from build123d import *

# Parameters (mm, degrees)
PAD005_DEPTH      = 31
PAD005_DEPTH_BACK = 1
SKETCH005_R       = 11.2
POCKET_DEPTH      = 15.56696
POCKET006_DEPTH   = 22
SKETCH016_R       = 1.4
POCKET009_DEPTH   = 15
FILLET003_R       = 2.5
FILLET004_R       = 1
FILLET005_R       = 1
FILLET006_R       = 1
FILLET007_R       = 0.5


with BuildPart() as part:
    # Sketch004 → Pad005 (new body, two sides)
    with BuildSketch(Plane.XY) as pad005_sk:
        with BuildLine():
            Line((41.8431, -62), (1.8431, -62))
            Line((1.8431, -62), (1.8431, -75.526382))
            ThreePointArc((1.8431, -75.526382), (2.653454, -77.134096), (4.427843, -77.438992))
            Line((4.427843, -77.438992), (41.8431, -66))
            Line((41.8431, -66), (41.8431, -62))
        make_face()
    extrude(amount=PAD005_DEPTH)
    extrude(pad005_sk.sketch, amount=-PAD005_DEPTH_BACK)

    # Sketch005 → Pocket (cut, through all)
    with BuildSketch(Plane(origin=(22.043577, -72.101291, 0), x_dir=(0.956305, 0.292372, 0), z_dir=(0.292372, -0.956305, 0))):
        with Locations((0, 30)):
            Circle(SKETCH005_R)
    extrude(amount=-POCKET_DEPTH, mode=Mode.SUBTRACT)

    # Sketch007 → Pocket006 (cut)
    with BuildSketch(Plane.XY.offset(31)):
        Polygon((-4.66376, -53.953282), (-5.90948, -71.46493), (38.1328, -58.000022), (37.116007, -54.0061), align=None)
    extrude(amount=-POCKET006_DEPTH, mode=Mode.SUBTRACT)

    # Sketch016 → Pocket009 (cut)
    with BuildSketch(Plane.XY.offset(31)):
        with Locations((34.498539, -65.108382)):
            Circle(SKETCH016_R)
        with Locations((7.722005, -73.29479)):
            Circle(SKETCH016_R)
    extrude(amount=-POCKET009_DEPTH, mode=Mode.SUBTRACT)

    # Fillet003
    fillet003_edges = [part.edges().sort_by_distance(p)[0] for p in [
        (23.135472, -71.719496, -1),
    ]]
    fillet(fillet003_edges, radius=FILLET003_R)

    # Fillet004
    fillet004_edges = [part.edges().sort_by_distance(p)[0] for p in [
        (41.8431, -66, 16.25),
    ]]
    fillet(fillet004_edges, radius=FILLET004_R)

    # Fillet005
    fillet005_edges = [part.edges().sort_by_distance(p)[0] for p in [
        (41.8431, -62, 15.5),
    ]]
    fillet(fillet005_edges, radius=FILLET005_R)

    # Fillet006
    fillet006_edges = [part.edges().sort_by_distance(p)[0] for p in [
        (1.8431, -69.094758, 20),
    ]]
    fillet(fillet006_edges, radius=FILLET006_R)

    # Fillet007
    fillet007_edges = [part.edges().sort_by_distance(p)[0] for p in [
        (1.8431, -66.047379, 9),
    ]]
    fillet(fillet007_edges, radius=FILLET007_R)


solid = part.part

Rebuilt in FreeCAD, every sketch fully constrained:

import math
import FreeCAD as App
import Part
import Sketcher
Q = App.Units.Quantity


def edges_at(feature, points):
    """Names of the edges that pass closest to the given points."""
    edges = feature.Shape.Edges
    near = lambda p: min(range(len(edges)), key=lambda i: edges[i].distToShape(Part.Vertex(*p))[0])
    return sorted({f"Edge{near(p) + 1}" for p in points})

doc = App.newDocument("Part")
body = doc.addObject("PartDesign::Body", "Body")

# Sketch on XY plane
sketch1 = doc.addObject("Sketcher::SketchObject", "Sketch")
body.addObject(sketch1)
sketch1.AttachmentSupport = (doc.XY_Plane, [""])
sketch1.MapMode = "FlatFace"
sketch1.addGeometry(Part.LineSegment(App.Vector(41.8, -62, 0), App.Vector(1.8, -62, 0)), False)
sketch1.addGeometry(Part.LineSegment(App.Vector(1.8, -62, 0), App.Vector(1.8, -75.5, 0)), False)
sketch1.addGeometry(Part.ArcOfCircle(Part.Circle(App.Vector(3.8, -75.5, 0), App.Vector(0, 0, 1), 2), math.radians(180), math.radians(287)), False)
sketch1.addGeometry(Part.LineSegment(App.Vector(4.4, -77.4, 0), App.Vector(41.8, -66, 0)), False)
sketch1.addGeometry(Part.LineSegment(App.Vector(41.8, -66, 0), App.Vector(41.8, -62, 0)), False)
sketch1.addConstraint(Sketcher.Constraint("Coincident", 0, 2, 1, 1))
sketch1.addConstraint(Sketcher.Constraint("Tangent", 1, 2, 2, 1))
sketch1.addConstraint(Sketcher.Constraint("Tangent", 2, 2, 3, 1))
sketch1.addConstraint(Sketcher.Constraint("Coincident", 3, 2, 4, 1))
sketch1.addConstraint(Sketcher.Constraint("Coincident", 4, 2, 0, 1))
sketch1.addConstraint(Sketcher.Constraint("Horizontal", 0))
sketch1.addConstraint(Sketcher.Constraint("Vertical", 1))
sketch1.addConstraint(Sketcher.Constraint("Vertical", 4))
sketch1.addConstraint(Sketcher.Constraint("Radius", 2, 2.0))
sketch1.addConstraint(Sketcher.Constraint("DistanceX", 0, 2, 0, 1, 40.0))
sketch1.addConstraint(Sketcher.Constraint("DistanceY", 4, 1, 4, 2, 4.0))
sketch1.addConstraint(Sketcher.Constraint("Angle", 3, Q("17 deg")))
sketch1.addConstraint(Sketcher.Constraint("DistanceY", 0, 2, -1, 1, 62.0))
sketch1.addConstraint(Sketcher.Constraint("DistanceX", -1, 1, 2, 3, 3.8431))
pad1 = doc.addObject("PartDesign::Pad", "Pad")
body.addObject(pad1)
pad1.Profile = sketch1
pad1.Type = "TwoLengths"
pad1.Length = 31
pad1.Length2 = 1

# Sketch on an angled plane
sketch2 = doc.addObject("Sketcher::SketchObject", "Sketch001")
body.addObject(sketch2)
sketch2.Placement = App.Placement(App.Vector(22.043577, -72.101291, 0), App.Rotation(App.Vector(0.956304694, 0.292371907, 0), App.Vector(0, 0, 1), App.Vector(0.292371907, -0.956304694, 0), "ZXY"))
sketch2.addGeometry(Part.Circle(App.Vector(0, 30, 0), App.Vector(0, 0, 1), 11), False)
sketch2.addConstraint(Sketcher.Constraint("PointOnObject", 0, 3, -2))
sketch2.addConstraint(Sketcher.Constraint("Diameter", 0, 22.4))
sketch2.addConstraint(Sketcher.Constraint("DistanceY", -1, 1, 0, 3, 30.0))
pocket1 = doc.addObject("PartDesign::Pocket", "Pocket")
body.addObject(pocket1)
pocket1.Profile = sketch2
pocket1.Type = "ThroughAll"

# Sketch on XY plane
sketch3 = doc.addObject("Sketcher::SketchObject", "Sketch002")
body.addObject(sketch3)
sketch3.AttachmentSupport = (doc.XY_Plane, [""])
sketch3.MapMode = "FlatFace"
sketch3.AttachmentOffset = App.Placement(App.Vector(0, 0, 31), App.Rotation())
sketch3.addGeometry(Part.LineSegment(App.Vector(-4.7, -54, 0), App.Vector(-5.9, -71.5, 0)), False)
sketch3.addGeometry(Part.LineSegment(App.Vector(-5.9, -71.5, 0), App.Vector(38.1, -58, 0)), False)
sketch3.addGeometry(Part.LineSegment(App.Vector(38.1, -58, 0), App.Vector(37.1, -54, 0)), False)
sketch3.addGeometry(Part.LineSegment(App.Vector(37.1, -54, 0), App.Vector(-4.7, -54, 0)), False)
sketch3.addConstraint(Sketcher.Constraint("Coincident", 0, 2, 1, 1))
sketch3.addConstraint(Sketcher.Constraint("Coincident", 1, 2, 2, 1))
sketch3.addConstraint(Sketcher.Constraint("Coincident", 2, 2, 3, 1))
sketch3.addConstraint(Sketcher.Constraint("Coincident", 3, 2, 0, 1))
sketch3.addConstraint(Sketcher.Constraint("Distance", 0, 17.5559))
sketch3.addConstraint(Sketcher.Constraint("Distance", 1, 46.0546))
sketch3.addConstraint(Sketcher.Constraint("Distance", 3, 41.7798))
sketch3.addConstraint(Sketcher.Constraint("DistanceX", -1, 1, 1, 2, 38.1328))
sketch3.addConstraint(Sketcher.Constraint("DistanceY", 2, 2, -1, 1, 54.0061))
sketch3.addConstraint(Sketcher.Constraint("Distance", 2, 4.12132))
sketch3.addConstraint(Sketcher.Constraint("DistanceX", 0, 2, -1, 1, 5.90948))
sketch3.addConstraint(Sketcher.Constraint("DistanceY", 0, 2, -1, 1, 71.46493))
pocket2 = doc.addObject("PartDesign::Pocket", "Pocket001")
body.addObject(pocket2)
pocket2.Profile = sketch3
pocket2.Length = 22

# Sketch on XY plane
sketch4 = doc.addObject("Sketcher::SketchObject", "Sketch003")
body.addObject(sketch4)
sketch4.AttachmentSupport = (doc.XY_Plane, [""])
sketch4.MapMode = "FlatFace"
sketch4.AttachmentOffset = App.Placement(App.Vector(0, 0, 31), App.Rotation())
sketch4.addGeometry(Part.Circle(App.Vector(34.5, -65.1, 0), App.Vector(0, 0, 1), 1.4), False)
sketch4.addGeometry(Part.Circle(App.Vector(7.7, -73.3, 0), App.Vector(0, 0, 1), 1.4), False)
sketch4.addConstraint(Sketcher.Constraint("Equal", 0, 1))
sketch4.addConstraint(Sketcher.Constraint("Diameter", 0, 2.8))
sketch4.addConstraint(Sketcher.Constraint("DistanceX", -1, 1, 0, 3, 34.498539))
sketch4.addConstraint(Sketcher.Constraint("DistanceY", 1, 3, -1, 1, 73.29479))
sketch4.addConstraint(Sketcher.Constraint("DistanceY", 0, 3, -1, 1, 65.108382))
sketch4.addConstraint(Sketcher.Constraint("DistanceX", -1, 1, 1, 3, 7.722005))
pocket3 = doc.addObject("PartDesign::Pocket", "Pocket002")
body.addObject(pocket3)
pocket3.Profile = sketch4
pocket3.Length = 15
doc.recompute()

fillet = doc.addObject("PartDesign::Fillet", "Fillet")
body.addObject(fillet)
fillet.Base = (pocket3, edges_at(pocket3, [(23.135, -71.719, -1)]))
fillet.Radius = 2.5
doc.recompute()

fillet2 = doc.addObject("PartDesign::Fillet", "Fillet001")
body.addObject(fillet2)
fillet2.Base = (fillet, edges_at(fillet, [(41.843, -66, 16.25)]))
fillet2.Radius = 1
doc.recompute()

fillet3 = doc.addObject("PartDesign::Fillet", "Fillet002")
body.addObject(fillet3)
fillet3.Base = (fillet2, edges_at(fillet2, [(41.843, -62, 15.5)]))
fillet3.Radius = 1
doc.recompute()

fillet4 = doc.addObject("PartDesign::Fillet", "Fillet003")
body.addObject(fillet4)
fillet4.Base = (fillet3, edges_at(fillet3, [(1.843, -69.095, 20)]))
fillet4.Radius = 1
doc.recompute()

fillet5 = doc.addObject("PartDesign::Fillet", "Fillet004")
body.addObject(fillet5)
fillet5.Base = (fillet4, edges_at(fillet4, [(1.843, -66.417, 9)]))
fillet5.Radius = 0.5

doc.recompute()
